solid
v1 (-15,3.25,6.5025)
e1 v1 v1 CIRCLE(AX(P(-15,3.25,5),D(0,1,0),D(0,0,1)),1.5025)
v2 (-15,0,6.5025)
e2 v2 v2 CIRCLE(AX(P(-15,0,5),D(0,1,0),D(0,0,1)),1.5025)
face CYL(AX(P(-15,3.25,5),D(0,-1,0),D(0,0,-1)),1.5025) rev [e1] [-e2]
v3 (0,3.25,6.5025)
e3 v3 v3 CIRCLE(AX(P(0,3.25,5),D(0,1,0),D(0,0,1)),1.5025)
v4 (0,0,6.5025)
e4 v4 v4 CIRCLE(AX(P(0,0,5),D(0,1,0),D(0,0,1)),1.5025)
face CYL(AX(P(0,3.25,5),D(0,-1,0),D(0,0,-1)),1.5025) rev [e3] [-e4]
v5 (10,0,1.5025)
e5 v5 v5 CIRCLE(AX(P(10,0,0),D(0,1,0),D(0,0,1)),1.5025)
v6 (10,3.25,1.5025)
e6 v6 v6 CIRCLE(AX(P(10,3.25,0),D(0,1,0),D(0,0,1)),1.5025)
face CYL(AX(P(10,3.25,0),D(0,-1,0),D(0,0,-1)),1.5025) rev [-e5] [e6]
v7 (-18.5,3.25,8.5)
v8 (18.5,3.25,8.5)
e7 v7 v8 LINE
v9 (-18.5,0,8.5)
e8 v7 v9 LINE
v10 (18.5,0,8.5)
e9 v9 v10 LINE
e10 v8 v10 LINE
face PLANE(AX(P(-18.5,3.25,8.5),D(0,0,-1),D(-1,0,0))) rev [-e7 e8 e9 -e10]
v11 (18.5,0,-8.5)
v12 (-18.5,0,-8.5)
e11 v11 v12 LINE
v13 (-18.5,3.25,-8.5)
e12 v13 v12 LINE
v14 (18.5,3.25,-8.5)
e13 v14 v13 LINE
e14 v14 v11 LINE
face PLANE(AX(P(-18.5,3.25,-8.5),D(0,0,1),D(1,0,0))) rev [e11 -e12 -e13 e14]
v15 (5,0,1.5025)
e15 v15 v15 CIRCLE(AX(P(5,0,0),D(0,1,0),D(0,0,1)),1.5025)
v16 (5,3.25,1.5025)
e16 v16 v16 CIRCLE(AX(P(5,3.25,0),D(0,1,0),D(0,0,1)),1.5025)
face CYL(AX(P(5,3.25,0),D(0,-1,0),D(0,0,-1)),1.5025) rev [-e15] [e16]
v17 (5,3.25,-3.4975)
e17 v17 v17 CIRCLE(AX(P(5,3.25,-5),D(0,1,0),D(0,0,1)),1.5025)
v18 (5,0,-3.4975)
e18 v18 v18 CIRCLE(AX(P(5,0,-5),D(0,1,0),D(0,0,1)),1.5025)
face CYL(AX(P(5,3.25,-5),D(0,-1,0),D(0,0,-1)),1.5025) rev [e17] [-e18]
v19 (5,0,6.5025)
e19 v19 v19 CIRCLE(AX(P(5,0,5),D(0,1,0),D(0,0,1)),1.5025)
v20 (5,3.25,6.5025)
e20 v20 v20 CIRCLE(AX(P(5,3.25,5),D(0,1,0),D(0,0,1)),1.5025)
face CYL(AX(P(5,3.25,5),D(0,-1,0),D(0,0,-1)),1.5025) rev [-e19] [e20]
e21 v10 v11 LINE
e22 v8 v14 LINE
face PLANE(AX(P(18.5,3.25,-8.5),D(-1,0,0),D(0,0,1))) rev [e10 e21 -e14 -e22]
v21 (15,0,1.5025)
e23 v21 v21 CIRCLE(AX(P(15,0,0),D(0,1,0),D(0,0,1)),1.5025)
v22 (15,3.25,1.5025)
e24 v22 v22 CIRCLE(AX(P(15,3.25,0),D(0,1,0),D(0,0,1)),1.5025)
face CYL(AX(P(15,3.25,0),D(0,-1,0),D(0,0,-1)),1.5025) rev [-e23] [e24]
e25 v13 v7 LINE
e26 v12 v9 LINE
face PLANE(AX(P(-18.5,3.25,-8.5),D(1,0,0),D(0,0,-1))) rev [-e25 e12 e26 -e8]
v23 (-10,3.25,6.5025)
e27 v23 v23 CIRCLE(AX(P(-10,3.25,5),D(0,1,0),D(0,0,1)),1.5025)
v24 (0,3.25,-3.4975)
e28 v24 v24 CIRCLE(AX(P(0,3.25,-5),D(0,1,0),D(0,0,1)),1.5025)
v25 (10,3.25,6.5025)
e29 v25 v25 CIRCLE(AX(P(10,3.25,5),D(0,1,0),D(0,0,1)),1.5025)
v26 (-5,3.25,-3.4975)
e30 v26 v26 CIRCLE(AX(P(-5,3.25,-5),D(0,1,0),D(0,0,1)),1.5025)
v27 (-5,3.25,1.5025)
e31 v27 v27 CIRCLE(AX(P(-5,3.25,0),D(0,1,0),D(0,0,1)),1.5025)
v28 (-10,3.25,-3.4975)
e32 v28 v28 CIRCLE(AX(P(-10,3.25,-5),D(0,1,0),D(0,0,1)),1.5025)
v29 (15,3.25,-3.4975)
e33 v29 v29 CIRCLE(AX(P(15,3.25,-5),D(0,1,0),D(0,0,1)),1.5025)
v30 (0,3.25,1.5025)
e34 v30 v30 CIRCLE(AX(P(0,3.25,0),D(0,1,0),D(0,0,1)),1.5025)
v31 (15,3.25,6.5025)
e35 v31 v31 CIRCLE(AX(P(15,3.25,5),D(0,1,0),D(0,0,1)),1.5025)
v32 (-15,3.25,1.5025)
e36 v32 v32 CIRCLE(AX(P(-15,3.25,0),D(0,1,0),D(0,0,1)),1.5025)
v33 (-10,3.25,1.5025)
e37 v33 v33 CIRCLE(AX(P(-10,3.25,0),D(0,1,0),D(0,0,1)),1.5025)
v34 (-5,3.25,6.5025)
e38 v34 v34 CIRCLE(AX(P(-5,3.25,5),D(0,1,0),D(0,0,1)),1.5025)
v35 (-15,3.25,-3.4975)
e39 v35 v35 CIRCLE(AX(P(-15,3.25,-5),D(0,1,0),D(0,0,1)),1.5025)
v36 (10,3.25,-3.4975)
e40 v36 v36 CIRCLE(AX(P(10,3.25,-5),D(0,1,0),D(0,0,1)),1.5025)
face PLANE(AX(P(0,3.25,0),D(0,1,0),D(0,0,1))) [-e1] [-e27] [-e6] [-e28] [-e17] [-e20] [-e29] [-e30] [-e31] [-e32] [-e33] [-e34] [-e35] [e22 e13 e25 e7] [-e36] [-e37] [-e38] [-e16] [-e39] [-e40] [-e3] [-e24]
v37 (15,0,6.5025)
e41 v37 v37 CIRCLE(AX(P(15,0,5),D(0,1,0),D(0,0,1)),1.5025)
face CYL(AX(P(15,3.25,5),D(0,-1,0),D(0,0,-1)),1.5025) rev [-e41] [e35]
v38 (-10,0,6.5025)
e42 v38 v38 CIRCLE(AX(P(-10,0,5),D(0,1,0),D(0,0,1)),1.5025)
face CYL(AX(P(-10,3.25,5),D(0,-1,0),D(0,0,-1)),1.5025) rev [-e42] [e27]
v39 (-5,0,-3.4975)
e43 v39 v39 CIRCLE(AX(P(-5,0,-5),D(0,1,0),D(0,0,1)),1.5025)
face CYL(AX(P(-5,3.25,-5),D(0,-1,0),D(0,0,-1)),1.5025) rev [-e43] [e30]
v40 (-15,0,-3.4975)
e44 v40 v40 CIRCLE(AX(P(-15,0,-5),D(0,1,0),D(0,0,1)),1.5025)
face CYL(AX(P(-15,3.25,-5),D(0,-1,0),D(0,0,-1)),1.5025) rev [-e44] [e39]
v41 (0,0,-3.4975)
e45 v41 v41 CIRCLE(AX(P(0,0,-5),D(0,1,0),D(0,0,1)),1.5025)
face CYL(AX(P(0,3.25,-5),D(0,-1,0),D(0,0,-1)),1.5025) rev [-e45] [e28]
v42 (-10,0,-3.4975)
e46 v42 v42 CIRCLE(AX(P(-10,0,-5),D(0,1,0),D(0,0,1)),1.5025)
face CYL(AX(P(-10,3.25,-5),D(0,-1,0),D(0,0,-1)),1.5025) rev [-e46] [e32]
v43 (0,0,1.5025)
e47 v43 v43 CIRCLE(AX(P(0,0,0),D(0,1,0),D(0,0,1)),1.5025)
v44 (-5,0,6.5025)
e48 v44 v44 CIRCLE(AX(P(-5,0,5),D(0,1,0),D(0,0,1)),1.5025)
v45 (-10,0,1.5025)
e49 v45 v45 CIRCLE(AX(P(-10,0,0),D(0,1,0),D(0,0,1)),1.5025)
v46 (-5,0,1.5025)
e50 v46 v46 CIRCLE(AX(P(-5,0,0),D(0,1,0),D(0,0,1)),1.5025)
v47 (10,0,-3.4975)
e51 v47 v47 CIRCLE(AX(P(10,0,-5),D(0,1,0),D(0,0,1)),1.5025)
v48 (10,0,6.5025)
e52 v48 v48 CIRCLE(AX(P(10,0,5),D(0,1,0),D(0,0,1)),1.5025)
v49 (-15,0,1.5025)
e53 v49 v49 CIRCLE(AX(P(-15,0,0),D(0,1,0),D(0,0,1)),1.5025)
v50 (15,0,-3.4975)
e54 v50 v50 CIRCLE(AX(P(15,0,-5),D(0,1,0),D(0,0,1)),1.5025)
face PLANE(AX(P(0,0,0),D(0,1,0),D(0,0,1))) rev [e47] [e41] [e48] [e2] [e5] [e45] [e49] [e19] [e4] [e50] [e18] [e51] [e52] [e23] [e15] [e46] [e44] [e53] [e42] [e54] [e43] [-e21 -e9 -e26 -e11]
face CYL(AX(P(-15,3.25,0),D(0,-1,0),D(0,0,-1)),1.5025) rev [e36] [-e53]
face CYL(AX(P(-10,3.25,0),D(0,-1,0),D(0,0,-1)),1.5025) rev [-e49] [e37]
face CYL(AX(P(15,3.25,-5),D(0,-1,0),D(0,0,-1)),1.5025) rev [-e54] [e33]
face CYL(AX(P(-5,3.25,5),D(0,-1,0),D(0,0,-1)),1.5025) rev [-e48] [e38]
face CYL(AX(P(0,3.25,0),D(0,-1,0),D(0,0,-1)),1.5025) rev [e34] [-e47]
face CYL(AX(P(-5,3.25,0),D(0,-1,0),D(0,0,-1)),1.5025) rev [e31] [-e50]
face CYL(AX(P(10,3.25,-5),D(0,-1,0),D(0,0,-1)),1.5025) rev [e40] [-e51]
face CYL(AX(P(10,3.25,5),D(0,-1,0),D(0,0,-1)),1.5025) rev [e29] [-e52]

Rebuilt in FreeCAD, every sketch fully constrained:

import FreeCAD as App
import Part
import Sketcher
from FreeCAD import Vector
Q = App.Units.Quantity

doc = App.newDocument("Part")
body = doc.addObject("PartDesign::Body", "Body")

sketch1 = body.newObject("Sketcher::SketchObject", "Sketch")
sketch1.AttachmentSupport = (doc.getObject("XZ_Plane"), [""])
sketch1.MapMode = "FlatFace"
sketch1.addGeometry(Part.LineSegment(Vector(-18.5, -8.5, 0), Vector(-18.5, 8.5, 0)), False)
sketch1.addGeometry(Part.LineSegment(Vector(-18.5, 8.5, 0), Vector(18.5, 8.5, 0)), False)
sketch1.addGeometry(Part.LineSegment(Vector(18.5, 8.5, 0), Vector(18.5, -8.5, 0)), False)
sketch1.addGeometry(Part.LineSegment(Vector(18.5, -8.5, 0), Vector(-18.5, -8.5, 0)), False)
sketch1.addGeometry(Part.Circle(Vector(-15, 5, 0), Vector(0, 0, 1), 1.5), False)
sketch1.addGeometry(Part.Circle(Vector(-10, 5, 0), Vector(0, 0, 1), 1.5), False)
sketch1.addGeometry(Part.Circle(Vector(-5, 5, 0), Vector(0, 0, 1), 1.5), False)
sketch1.addGeometry(Part.Circle(Vector(0, 5, 0), Vector(0, 0, 1), 1.5), False)
sketch1.addGeometry(Part.Circle(Vector(5, 5, 0), Vector(0, 0, 1), 1.5), False)
sketch1.addGeometry(Part.Circle(Vector(10, 5, 0), Vector(0, 0, 1), 1.5), False)
sketch1.addGeometry(Part.Circle(Vector(15, 5, 0), Vector(0, 0, 1), 1.5), False)
sketch1.addGeometry(Part.Circle(Vector(-15, 0, 0), Vector(0, 0, 1), 1.5), False)
sketch1.addGeometry(Part.Circle(Vector(-10, 0, 0), Vector(0, 0, 1), 1.5), False)
sketch1.addGeometry(Part.Circle(Vector(-5, 0, 0), Vector(0, 0, 1), 1.5), False)
sketch1.addGeometry(Part.Circle(Vector(-15, -5, 0), Vector(0, 0, 1), 1.5), False)
sketch1.addGeometry(Part.Circle(Vector(-10, -5, 0), Vector(0, 0, 1), 1.5), False)
sketch1.addGeometry(Part.Circle(Vector(-5, -5, 0), Vector(0, 0, 1), 1.5), False)
sketch1.addGeometry(Part.Circle(Vector(0, 0, 0), Vector(0, 0, 1), 1.5), False)
sketch1.addGeometry(Part.Circle(Vector(5, 0, 0), Vector(0, 0, 1), 1.5), False)
sketch1.addGeometry(Part.Circle(Vector(10, 0, 0), Vector(0, 0, 1), 1.5), False)
sketch1.addGeometry(Part.Circle(Vector(15, 0, 0), Vector(0, 0, 1), 1.5), False)
sketch1.addGeometry(Part.Circle(Vector(0, -5, 0), Vector(0, 0, 1), 1.5), False)
sketch1.addGeometry(Part.Circle(Vector(5, -5, 0), Vector(0, 0, 1), 1.5), False)
sketch1.addGeometry(Part.Circle(Vector(10, -5, 0), Vector(0, 0, 1), 1.5), False)
sketch1.addGeometry(Part.Circle(Vector(15, -5, 0), Vector(0, 0, 1), 1.5), False)
sketch1.addConstraint(Sketcher.Constraint("Coincident", 0, 2, 1, 1))
sketch1.addConstraint(Sketcher.Constraint("Coincident", 1, 2, 2, 1))
sketch1.addConstraint(Sketcher.Constraint("Coincident", 2, 2, 3, 1))
sketch1.addConstraint(Sketcher.Constraint("Coincident", 3, 2, 0, 1))
sketch1.addConstraint(Sketcher.Constraint("Vertical", 0))
sketch1.addConstraint(Sketcher.Constraint("Horizontal", 1))
sketch1.addConstraint(Sketcher.Constraint("Vertical", 2))
sketch1.addConstraint(Sketcher.Constraint("Horizontal", 3))
sketch1.addConstraint(Sketcher.Constraint("Coincident", 17, 3, -1, 1))
sketch1.addConstraint(Sketcher.Constraint("Equal", 4, 5))
sketch1.addConstraint(Sketcher.Constraint("Equal", 5, 6))
sketch1.addConstraint(Sketcher.Constraint("Equal", 6, 7))
sketch1.addConstraint(Sketcher.Constraint("Equal", 7, 8))
sketch1.addConstraint(Sketcher.Constraint("Equal", 8, 9))
sketch1.addConstraint(Sketcher.Constraint("Equal", 9, 10))
sketch1.addConstraint(Sketcher.Constraint("Equal", 10, 11))
sketch1.addConstraint(Sketcher.Constraint("Equal", 11, 12))
sketch1.addConstraint(Sketcher.Constraint("Equal", 12, 13))
sketch1.addConstraint(Sketcher.Constraint("Equal", 13, 14))
sketch1.addConstraint(Sketcher.Constraint("Equal", 14, 15))
sketch1.addConstraint(Sketcher.Constraint("Equal", 15, 16))
sketch1.addConstraint(Sketcher.Constraint("Equal", 16, 17))
sketch1.addConstraint(Sketcher.Constraint("Equal", 17, 18))
sketch1.addConstraint(Sketcher.Constraint("Equal", 18, 19))
sketch1.addConstraint(Sketcher.Constraint("Equal", 19, 20))
sketch1.addConstraint(Sketcher.Constraint("Equal", 20, 21))
sketch1.addConstraint(Sketcher.Constraint("Equal", 21, 22))
sketch1.addConstraint(Sketcher.Constraint("Equal", 22, 23))
sketch1.addConstraint(Sketcher.Constraint("Equal", 23, 24))
sketch1.addConstraint(Sketcher.Constraint("Symmetric", 10, 3, 14, 3, -1, 1))
sketch1.addConstraint(Sketcher.Constraint("Symmetric", 9, 3, 15, 3, -1, 1))
sketch1.addConstraint(Sketcher.Constraint("Symmetric", 8, 3, 16, 3, -1, 1))
sketch1.addConstraint(Sketcher.Constraint("Symmetric", 13, 3, 18, 3, -1, 1))
sketch1.addConstraint(Sketcher.Constraint("Symmetric", 12, 3, 19, 3, -1, 1))
sketch1.addConstraint(Sketcher.Constraint("Symmetric", 11, 3, 20, 3, -1, 1))
sketch1.addConstraint(Sketcher.Constraint("Symmetric", 7, 3, 21, 3, -1, 1))
sketch1.addConstraint(Sketcher.Constraint("Symmetric", 6, 3, 22, 3, -1, 1))
sketch1.addConstraint(Sketcher.Constraint("Symmetric", 5, 3, 23, 3, -1, 1))
sketch1.addConstraint(Sketcher.Constraint("Symmetric", 4, 3, 24, 3, -1, 1))
sketch1.addConstraint(Sketcher.Constraint("Symmetric", 0, 2, 2, 2, -1, 1))
sketch1.addConstraint(Sketcher.Constraint("Symmetric", 6, 3, 8, 3, -2))
sketch1.addConstraint(Sketcher.Constraint("Symmetric", 5, 3, 9, 3, -2))
sketch1.addConstraint(Sketcher.Constraint("Symmetric", 4, 3, 10, 3, -2))
sketch1.addConstraint(Sketcher.Constraint("PointOnObject", 7, 3, -2))
sketch1.addConstraint(Sketcher.Constraint("PointOnObject", 11, 3, -1))
sketch1.addConstraint(Sketcher.Constraint("PointOnObject", 12, 3, -1))
sketch1.addConstraint(Sketcher.Constraint("PointOnObject", 13, 3, -1))
sketch1.addConstraint(Sketcher.Constraint("Horizontal", 4, 3, 5, 3))
sketch1.addConstraint(Sketcher.Constraint("Horizontal", 5, 3, 6, 3))
sketch1.addConstraint(Sketcher.Constraint("Horizontal", 6, 3, 7, 3))
sketch1.addConstraint(Sketcher.Constraint("Vertical", 4, 3, 11, 3))
sketch1.addConstraint(Sketcher.Constraint("Vertical", 5, 3, 12, 3))
sketch1.addConstraint(Sketcher.Constraint("Vertical", 6, 3, 13, 3))
sketch1.addConstraint(Sketcher.Constraint("DistanceX", 1, 1, 1, 2, Q("37 mm")))
sketch1.addConstraint(Sketcher.Constraint("DistanceY", 0, 1, 0, 2, Q("17 mm")))
sketch1.addConstraint(Sketcher.Constraint("Diameter", 4, Q("3.005 mm")))
sketch1.addConstraint(Sketcher.Constraint("DistanceX", 4, 3, -1, 1, Q("15 mm")))
sketch1.addConstraint(Sketcher.Constraint("DistanceY", -1, 1, 4, 3, Q("5 mm")))
sketch1.addConstraint(Sketcher.Constraint("DistanceX", 5, 3, -1, 1, Q("10 mm")))
sketch1.addConstraint(Sketcher.Constraint("DistanceX", 6, 3, -1, 1, Q("5 mm")))
pad1 = body.newObject("PartDesign::Pad", "Pad")
pad1.Profile = sketch1
pad1.Length = 3.25
pad1.Reversed = True

doc.recompute()
